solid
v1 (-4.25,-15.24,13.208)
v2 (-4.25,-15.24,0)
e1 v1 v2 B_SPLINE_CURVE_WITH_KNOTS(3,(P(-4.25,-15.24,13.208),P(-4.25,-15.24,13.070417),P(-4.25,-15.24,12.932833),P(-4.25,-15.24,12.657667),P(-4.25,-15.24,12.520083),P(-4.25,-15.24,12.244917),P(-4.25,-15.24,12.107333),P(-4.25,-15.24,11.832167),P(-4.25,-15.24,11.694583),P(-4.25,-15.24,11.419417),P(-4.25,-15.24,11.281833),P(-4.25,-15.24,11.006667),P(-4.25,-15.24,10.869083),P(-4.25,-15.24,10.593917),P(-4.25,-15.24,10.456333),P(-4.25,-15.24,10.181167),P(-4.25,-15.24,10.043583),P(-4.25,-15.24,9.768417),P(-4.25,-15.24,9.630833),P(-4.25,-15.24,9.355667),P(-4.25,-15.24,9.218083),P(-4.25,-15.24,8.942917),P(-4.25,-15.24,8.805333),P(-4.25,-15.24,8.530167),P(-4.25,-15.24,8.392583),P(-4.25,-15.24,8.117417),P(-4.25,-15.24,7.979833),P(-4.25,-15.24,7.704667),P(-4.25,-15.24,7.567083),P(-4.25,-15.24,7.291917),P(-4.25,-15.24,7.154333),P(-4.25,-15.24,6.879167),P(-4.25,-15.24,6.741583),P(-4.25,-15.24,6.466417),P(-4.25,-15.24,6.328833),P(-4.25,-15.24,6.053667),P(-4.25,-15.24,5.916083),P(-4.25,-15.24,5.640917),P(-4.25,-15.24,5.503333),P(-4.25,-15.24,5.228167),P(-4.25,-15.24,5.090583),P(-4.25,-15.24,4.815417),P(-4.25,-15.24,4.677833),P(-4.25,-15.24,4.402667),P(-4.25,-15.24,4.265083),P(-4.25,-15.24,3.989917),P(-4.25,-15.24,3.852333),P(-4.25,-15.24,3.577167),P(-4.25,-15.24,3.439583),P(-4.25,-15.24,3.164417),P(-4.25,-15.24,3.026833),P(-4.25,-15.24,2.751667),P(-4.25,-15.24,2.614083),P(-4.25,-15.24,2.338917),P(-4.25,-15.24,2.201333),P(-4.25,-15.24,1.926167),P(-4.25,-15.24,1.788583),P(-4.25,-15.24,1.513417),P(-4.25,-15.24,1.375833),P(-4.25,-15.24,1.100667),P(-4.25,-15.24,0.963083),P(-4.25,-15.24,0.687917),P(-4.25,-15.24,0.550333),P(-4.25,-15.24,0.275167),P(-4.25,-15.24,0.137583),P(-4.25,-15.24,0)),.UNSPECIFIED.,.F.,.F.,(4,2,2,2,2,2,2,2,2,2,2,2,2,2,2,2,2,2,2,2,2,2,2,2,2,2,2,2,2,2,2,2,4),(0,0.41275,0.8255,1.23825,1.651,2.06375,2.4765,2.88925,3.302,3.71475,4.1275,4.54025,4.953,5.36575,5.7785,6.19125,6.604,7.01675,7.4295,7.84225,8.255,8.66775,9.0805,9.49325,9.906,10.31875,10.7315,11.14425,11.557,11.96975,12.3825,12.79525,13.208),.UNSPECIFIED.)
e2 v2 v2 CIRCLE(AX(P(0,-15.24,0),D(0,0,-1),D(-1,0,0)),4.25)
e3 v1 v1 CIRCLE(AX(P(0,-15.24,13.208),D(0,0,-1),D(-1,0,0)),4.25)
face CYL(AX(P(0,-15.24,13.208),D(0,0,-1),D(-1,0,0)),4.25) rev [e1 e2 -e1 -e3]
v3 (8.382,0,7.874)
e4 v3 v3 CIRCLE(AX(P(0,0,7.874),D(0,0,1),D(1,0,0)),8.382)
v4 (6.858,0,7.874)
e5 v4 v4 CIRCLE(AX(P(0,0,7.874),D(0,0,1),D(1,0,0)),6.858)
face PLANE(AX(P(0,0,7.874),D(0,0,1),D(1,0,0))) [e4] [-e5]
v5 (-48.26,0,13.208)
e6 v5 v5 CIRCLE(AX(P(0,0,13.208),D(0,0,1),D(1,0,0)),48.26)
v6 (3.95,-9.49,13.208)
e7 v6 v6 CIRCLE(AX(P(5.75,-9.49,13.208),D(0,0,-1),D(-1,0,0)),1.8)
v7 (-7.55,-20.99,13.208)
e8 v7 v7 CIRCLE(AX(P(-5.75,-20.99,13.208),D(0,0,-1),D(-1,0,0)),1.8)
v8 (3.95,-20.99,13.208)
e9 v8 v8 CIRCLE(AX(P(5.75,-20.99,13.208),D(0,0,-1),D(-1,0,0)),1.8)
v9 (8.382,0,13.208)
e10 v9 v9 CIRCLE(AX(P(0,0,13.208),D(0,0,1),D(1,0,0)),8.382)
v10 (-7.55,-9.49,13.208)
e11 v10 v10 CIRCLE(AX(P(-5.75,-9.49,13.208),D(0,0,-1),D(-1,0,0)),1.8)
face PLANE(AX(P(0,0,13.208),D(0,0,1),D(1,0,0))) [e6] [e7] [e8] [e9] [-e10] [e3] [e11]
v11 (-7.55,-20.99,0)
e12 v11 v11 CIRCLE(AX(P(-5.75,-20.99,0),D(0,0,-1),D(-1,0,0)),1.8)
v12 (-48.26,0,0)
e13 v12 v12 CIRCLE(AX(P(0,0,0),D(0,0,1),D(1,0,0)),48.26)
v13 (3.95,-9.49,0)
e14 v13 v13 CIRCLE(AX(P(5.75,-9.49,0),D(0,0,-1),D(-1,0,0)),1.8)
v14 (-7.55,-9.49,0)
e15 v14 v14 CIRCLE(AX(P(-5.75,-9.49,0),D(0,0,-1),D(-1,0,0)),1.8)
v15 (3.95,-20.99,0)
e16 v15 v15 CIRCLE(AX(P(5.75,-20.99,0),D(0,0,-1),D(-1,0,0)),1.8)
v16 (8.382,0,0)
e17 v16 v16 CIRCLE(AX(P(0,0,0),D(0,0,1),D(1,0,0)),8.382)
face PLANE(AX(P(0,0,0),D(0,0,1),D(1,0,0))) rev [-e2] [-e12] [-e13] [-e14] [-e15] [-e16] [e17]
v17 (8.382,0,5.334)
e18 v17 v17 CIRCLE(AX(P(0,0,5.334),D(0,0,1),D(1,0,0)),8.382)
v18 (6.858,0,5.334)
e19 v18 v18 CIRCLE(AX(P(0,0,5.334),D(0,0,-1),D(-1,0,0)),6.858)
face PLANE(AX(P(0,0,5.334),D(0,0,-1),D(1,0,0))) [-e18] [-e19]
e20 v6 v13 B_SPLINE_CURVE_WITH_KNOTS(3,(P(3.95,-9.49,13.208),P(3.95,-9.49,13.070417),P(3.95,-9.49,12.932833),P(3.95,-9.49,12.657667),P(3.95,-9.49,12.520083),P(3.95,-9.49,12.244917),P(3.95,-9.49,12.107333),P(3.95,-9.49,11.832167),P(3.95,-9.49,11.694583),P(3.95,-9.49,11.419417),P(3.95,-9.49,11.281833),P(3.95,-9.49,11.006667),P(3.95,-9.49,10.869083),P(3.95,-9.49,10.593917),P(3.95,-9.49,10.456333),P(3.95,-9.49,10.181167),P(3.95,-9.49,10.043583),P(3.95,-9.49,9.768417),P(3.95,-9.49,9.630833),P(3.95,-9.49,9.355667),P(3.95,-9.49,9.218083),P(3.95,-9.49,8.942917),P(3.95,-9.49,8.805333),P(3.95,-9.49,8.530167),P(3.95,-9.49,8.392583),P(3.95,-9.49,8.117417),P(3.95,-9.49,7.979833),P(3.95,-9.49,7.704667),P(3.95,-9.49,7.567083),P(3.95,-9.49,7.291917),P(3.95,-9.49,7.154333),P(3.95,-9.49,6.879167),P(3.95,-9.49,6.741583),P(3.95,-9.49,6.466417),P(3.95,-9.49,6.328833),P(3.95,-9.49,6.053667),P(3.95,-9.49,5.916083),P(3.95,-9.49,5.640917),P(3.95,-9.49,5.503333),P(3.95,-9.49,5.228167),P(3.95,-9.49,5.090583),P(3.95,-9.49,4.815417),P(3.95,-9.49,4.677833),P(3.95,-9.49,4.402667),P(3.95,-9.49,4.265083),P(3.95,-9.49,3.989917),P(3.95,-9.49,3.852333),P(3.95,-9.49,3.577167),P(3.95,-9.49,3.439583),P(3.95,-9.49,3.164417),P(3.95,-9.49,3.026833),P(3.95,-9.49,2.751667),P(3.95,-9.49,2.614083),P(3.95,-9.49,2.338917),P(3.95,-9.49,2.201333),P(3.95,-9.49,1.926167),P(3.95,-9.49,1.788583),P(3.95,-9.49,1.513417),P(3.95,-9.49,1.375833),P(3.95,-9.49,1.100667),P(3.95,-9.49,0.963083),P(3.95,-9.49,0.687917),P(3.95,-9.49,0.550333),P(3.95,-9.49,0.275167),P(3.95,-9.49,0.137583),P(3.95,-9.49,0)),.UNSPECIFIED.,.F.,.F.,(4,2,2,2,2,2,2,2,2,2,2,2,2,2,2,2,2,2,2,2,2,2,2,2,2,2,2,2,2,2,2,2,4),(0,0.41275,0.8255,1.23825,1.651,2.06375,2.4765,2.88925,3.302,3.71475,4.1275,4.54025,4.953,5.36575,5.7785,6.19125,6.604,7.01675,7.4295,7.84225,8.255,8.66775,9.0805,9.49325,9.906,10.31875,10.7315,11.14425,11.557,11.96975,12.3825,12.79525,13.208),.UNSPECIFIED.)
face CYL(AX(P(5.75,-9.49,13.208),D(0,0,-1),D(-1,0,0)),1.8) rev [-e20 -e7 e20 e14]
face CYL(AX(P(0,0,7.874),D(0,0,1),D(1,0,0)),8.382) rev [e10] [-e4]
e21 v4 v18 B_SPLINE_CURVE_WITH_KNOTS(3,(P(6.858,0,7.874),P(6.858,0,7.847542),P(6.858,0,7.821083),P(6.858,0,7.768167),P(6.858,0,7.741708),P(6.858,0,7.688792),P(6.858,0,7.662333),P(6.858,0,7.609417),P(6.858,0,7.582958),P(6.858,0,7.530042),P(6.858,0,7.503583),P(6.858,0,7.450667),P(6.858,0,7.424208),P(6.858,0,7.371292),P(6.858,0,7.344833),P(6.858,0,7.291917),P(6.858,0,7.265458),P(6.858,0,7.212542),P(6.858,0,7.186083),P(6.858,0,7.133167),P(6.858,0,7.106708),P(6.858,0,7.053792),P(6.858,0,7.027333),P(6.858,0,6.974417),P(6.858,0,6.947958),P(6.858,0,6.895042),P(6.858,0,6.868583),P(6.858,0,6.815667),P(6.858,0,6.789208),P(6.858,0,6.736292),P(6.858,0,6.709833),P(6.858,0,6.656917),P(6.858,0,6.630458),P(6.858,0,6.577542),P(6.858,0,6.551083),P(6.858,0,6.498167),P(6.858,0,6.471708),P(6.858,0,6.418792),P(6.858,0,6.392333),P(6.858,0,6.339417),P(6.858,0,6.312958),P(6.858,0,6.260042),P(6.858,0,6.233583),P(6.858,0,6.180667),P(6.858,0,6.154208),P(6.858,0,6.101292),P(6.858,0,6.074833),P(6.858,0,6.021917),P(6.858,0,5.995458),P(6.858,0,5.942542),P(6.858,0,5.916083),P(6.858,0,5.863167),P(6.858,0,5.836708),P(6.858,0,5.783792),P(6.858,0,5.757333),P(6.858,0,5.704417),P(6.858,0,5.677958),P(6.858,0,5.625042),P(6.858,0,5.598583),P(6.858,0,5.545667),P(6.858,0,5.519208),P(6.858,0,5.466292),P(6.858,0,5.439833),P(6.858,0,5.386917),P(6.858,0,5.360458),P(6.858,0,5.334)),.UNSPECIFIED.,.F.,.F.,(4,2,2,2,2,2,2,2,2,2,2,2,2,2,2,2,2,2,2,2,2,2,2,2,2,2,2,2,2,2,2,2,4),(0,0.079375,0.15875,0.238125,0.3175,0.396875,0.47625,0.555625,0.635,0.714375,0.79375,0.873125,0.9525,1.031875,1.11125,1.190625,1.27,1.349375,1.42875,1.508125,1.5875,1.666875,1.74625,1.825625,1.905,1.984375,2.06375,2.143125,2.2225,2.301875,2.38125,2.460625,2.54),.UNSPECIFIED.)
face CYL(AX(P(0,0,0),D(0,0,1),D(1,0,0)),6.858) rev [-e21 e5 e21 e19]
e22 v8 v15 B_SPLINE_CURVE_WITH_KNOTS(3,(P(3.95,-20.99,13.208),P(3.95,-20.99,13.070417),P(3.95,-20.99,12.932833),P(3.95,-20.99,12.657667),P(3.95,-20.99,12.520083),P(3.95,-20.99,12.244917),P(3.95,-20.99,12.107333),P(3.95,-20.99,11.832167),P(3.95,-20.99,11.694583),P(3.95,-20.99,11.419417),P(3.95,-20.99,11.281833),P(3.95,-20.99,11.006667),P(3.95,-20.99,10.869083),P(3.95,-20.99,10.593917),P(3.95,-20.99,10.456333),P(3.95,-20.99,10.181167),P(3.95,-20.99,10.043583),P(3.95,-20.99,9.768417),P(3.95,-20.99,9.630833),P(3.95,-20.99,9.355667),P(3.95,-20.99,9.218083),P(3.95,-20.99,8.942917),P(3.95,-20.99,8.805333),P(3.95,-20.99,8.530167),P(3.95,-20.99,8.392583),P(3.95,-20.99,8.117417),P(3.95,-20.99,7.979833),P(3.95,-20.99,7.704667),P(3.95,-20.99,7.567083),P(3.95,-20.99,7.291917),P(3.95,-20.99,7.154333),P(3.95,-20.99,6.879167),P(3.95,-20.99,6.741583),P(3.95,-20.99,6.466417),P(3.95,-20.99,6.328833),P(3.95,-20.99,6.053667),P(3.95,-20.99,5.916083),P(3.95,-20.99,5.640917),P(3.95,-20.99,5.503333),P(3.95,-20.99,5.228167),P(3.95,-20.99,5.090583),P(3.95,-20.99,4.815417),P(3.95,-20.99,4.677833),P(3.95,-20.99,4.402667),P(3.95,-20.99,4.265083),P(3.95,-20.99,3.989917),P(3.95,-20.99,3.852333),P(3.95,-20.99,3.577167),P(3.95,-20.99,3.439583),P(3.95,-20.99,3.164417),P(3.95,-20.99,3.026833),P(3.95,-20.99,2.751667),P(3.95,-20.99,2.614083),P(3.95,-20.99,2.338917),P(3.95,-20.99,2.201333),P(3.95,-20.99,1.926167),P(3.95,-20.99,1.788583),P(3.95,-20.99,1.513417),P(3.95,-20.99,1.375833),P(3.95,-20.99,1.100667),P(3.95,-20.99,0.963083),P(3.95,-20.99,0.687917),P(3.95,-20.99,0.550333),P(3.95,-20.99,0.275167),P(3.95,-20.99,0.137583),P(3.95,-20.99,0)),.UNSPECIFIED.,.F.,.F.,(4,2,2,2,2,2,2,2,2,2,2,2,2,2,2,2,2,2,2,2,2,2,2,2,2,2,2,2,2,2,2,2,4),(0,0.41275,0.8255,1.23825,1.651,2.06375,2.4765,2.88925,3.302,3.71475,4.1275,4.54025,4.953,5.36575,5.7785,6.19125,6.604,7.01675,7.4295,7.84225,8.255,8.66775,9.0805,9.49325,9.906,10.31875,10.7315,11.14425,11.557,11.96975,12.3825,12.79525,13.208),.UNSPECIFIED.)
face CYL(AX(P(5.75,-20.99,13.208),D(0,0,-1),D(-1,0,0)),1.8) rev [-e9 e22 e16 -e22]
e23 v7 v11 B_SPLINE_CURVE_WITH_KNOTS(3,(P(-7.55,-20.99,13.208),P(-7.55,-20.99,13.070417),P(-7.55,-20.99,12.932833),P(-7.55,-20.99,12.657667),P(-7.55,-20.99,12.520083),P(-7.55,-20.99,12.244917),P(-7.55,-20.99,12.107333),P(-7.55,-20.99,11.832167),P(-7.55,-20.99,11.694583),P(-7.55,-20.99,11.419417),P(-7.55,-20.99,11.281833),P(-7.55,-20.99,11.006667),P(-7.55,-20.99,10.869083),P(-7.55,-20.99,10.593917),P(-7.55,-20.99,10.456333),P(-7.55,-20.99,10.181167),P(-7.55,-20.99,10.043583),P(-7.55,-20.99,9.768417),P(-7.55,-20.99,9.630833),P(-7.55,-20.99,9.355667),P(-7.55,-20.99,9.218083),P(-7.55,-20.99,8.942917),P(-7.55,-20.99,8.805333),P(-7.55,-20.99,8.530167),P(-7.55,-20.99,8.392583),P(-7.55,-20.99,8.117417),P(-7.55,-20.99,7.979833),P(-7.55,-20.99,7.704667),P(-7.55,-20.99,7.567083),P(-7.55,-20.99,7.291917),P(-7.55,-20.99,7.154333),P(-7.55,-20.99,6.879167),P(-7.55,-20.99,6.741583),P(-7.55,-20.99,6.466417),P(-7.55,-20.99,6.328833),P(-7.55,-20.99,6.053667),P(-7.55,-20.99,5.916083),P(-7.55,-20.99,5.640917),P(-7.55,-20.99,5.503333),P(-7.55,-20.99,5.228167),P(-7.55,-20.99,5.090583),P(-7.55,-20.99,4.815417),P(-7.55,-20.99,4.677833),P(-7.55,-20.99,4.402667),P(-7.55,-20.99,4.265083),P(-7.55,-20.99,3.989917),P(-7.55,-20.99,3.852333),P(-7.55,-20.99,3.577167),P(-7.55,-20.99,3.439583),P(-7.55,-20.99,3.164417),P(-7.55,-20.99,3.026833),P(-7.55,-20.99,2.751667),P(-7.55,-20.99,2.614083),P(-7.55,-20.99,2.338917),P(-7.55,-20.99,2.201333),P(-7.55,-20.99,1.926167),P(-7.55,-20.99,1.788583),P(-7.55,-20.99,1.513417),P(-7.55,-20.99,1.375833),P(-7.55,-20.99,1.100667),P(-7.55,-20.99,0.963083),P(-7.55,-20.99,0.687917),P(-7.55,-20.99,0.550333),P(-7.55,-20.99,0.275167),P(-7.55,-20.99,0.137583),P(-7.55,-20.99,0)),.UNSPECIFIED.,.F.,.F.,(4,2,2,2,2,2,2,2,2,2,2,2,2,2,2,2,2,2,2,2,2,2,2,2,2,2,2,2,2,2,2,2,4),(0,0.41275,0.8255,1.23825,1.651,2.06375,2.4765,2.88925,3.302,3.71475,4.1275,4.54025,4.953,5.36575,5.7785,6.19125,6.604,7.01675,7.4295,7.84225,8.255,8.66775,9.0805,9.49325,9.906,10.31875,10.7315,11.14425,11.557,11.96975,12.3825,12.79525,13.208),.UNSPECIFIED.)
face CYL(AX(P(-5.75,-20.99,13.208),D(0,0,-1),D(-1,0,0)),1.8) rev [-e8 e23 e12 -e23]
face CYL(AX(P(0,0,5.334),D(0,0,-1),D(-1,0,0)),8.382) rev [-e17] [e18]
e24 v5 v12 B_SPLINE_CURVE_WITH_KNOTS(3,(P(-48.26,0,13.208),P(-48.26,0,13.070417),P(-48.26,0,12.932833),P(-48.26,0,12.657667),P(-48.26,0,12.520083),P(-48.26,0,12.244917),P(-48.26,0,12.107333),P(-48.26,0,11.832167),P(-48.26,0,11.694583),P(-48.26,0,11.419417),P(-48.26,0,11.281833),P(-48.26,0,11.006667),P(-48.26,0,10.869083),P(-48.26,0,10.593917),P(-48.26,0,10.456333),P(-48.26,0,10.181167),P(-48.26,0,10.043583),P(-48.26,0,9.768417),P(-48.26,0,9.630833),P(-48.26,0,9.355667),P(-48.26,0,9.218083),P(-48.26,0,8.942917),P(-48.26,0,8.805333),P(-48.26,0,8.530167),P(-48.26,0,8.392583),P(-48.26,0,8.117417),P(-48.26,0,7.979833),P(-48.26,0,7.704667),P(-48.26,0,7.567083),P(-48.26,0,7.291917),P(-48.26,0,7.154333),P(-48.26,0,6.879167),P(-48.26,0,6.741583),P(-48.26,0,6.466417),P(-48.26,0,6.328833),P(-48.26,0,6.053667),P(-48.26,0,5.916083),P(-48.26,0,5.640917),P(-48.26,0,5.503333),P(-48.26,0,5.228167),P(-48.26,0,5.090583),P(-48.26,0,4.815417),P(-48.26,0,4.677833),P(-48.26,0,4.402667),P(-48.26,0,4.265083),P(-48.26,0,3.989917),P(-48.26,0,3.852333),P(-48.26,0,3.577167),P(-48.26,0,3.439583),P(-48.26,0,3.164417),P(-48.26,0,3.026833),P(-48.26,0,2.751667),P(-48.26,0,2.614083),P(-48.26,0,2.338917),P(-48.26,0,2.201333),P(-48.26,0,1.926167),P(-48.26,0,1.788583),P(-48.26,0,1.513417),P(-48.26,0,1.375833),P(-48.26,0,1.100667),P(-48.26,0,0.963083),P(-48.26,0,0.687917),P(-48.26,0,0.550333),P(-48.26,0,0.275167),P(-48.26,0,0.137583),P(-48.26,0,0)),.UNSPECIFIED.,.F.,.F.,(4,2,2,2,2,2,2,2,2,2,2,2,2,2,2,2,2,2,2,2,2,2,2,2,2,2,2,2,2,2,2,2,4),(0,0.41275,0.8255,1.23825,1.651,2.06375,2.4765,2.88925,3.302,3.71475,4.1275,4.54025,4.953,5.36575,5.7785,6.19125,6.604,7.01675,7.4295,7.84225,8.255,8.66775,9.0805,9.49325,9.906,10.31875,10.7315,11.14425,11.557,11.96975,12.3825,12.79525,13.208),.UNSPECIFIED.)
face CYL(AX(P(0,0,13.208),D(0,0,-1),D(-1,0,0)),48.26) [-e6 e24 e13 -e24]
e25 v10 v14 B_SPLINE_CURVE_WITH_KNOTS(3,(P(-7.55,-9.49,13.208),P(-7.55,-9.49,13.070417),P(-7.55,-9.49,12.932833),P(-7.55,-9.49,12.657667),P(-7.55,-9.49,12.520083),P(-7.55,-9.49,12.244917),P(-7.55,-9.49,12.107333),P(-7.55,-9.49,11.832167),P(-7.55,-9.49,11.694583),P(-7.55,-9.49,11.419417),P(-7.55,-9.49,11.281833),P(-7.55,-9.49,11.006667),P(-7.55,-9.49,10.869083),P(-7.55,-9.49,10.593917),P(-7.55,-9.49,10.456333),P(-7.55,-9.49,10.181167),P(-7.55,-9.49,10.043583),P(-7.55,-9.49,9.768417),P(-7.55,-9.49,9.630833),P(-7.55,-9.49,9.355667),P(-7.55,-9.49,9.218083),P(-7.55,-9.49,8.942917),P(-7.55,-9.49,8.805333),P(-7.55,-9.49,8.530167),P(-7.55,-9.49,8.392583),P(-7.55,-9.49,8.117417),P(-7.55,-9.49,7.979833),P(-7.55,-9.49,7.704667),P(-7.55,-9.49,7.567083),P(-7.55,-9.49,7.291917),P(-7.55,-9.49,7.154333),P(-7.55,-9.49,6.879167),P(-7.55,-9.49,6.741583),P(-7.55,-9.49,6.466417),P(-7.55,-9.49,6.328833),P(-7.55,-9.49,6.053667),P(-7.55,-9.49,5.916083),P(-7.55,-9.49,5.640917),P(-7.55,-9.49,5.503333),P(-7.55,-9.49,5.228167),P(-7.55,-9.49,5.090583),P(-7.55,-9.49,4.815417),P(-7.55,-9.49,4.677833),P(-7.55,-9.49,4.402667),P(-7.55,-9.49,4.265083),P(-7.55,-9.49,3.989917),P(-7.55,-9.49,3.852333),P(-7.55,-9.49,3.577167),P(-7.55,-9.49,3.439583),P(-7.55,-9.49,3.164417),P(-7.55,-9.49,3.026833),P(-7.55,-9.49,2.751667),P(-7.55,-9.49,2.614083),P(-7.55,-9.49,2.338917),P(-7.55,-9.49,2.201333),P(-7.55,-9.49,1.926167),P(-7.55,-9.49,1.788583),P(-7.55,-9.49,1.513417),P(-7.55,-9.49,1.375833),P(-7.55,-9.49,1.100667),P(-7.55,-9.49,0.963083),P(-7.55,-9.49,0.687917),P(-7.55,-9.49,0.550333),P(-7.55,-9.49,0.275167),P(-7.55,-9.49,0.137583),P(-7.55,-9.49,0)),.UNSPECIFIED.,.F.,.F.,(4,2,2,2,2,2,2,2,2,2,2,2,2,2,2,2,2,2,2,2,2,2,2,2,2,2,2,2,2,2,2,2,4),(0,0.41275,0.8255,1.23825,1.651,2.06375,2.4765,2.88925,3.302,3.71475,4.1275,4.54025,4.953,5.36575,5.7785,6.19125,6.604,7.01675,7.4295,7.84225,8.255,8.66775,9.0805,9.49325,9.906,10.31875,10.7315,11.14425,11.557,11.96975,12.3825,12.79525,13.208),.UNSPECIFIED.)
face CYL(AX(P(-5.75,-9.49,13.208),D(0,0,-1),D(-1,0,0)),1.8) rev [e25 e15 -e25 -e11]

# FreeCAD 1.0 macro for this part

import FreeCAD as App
import Part
import Sketcher
from FreeCAD import Vector
Q = App.Units.Quantity

doc = App.newDocument("Part")
body = doc.addObject("PartDesign::Body", "Body")

# Sketch on XY plane
sketch1 = doc.addObject("Sketcher::SketchObject", "Sketch")
body.addObject(sketch1)
sketch1.AttachmentSupport = (doc.XY_Plane, [""])
sketch1.MapMode = "FlatFace"
sketch1.addGeometry(Part.Circle(Vector(0, 0, 0), Vector(0, 0, 1), 48.26), False)
sketch1.addConstraint([
    Sketcher.Constraint("Coincident", 0, 3, -1, 1),
    Sketcher.Constraint("Diameter", 0, Q("3.8 in")),
])
pad1 = doc.addObject("PartDesign::Pad", "Pad")
body.addObject(pad1)
pad1.Profile = sketch1
pad1.Length = Q("0.52 in")

# Sketch on XY plane
sketch2 = doc.addObject("Sketcher::SketchObject", "Sketch001")
body.addObject(sketch2)
sketch2.AttachmentSupport = (doc.XY_Plane, [""])
sketch2.MapMode = "FlatFace"
sketch2.AttachmentOffset = App.Placement(Vector(0, 0, 0.52 * 25.4), App.Rotation())
sketch2.addGeometry(Part.Circle(Vector(0, 0, 0), Vector(0, 0, 1), 8.382), False)
sketch2.addConstraint([
    Sketcher.Constraint("Coincident", 0, 3, -1, 1),
    Sketcher.Constraint("Diameter", 0, Q("0.66 in")),
])
pocket1 = doc.addObject("PartDesign::Pocket", "Pocket")
body.addObject(pocket1)
pocket1.Profile = sketch2
pocket1.Length = Q("0.21 in")

# Sketch on XY plane
sketch3 = doc.addObject("Sketcher::SketchObject", "Sketch002")
body.addObject(sketch3)
sketch3.AttachmentSupport = (doc.XY_Plane, [""])
sketch3.MapMode = "FlatFace"
sketch3.addGeometry(Part.Circle(Vector(0, -15.24, 0), Vector(0, 0, 1), 4.25), False)
sketch3.addConstraint([
    Sketcher.Constraint("PointOnObject", 0, 3, -2),
    Sketcher.Constraint("DistanceY", 0, 3, -1, 1, Q("0.6 in")),
    Sketcher.Constraint("Diameter", 0, 8.5),
])
pocket2 = doc.addObject("PartDesign::Pocket", "Pocket001")
body.addObject(pocket2)
pocket2.Profile = sketch3
pocket2.Type = "ThroughAll"
pocket2.Reversed = True

# Sketch on XY plane
sketch4 = doc.addObject("Sketcher::SketchObject", "Sketch003")
body.addObject(sketch4)
sketch4.AttachmentSupport = (doc.XY_Plane, [""])
sketch4.MapMode = "FlatFace"
sketch4.addGeometry([
    Part.Circle(Vector(-5.75, -9.49, 0), Vector(0, 0, 1), 1.8),
    Part.Circle(Vector(-5.75, -20.99, 0), Vector(0, 0, 1), 1.8),
    Part.Circle(Vector(5.75, -20.99, 0), Vector(0, 0, 1), 1.8),
    Part.Circle(Vector(5.75, -9.49, 0), Vector(0, 0, 1), 1.8),
], False)
sketch4.addConstraint([
    Sketcher.Constraint("Equal", 0, 1),
    Sketcher.Constraint("Equal", 1, 2),
    Sketcher.Constraint("Equal", 2, 3),
    Sketcher.Constraint("Symmetric", 1, 3, 2, 3, -2),
    Sketcher.Constraint("Symmetric", 0, 3, 3, 3, -2),
    Sketcher.Constraint("Vertical", 0, 3, 1, 3),
    Sketcher.Constraint("Diameter", 0, 3.6),
    Sketcher.Constraint("DistanceX", 0, 3, -1, 1, 5.75),
    Sketcher.Constraint("DistanceY", 0, 3, -1, 1, 9.49),
    Sketcher.Constraint("DistanceY", 1, 3, -1, 1, 20.99),
])
pocket3 = doc.addObject("PartDesign::Pocket", "Pocket002")
body.addObject(pocket3)
pocket3.Profile = sketch4
pocket3.Type = "ThroughAll"
pocket3.Reversed = True
doc.recompute()

datumplane = doc.addObject("PartDesign::Plane", "DatumPlane")
body.addObject(datumplane)
datumplane.AttachmentSupport = (doc.XY_Plane, [""])
datumplane.MapMode = "FlatFace"
datumplane.AttachmentOffset = App.Placement(Vector(0, 0, 0.26 * 25.4), App.Rotation())
mirrored = doc.addObject("PartDesign::Mirrored", "Mirrored")
body.addObject(mirrored)
mirrored.Originals = [pocket1]
mirrored.MirrorPlane = (datumplane, [""])
body.Tip = mirrored

# Sketch on XY plane
sketch5 = doc.addObject("Sketcher::SketchObject", "Sketch004")
body.addObject(sketch5)
sketch5.AttachmentSupport = (doc.XY_Plane, [""])
sketch5.MapMode = "FlatFace"
sketch5.AttachmentOffset = App.Placement(Vector(0, 0, 0.52 * 25.4), App.Rotation())
sketch5.addGeometry(Part.Circle(Vector(0, 0, 0), Vector(0, 0, 1), 6.858), False)
sketch5.addConstraint([
    Sketcher.Constraint("Coincident", 0, 3, -1, 1),
    Sketcher.Constraint("Diameter", 0, Q("0.54 in")),
])
pocket4 = doc.addObject("PartDesign::Pocket", "Pocket003")
body.addObject(pocket4)
pocket4.Profile = sketch5
pocket4.Type = "ThroughAll"

doc.recompute()
